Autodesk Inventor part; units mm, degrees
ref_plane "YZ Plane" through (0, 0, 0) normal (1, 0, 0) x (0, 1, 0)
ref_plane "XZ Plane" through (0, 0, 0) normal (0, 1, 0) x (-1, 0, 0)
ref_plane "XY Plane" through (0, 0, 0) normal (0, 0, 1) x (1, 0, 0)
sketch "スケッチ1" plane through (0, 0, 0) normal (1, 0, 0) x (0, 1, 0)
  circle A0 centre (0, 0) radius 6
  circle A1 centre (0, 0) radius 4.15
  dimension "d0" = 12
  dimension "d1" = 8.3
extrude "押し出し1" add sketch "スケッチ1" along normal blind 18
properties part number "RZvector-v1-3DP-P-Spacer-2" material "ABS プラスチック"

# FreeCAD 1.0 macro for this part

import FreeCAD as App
import Part
import Sketcher

doc = App.newDocument("Part")
body = doc.addObject("PartDesign::Body", "Body")

sketch1 = doc.addObject("Sketcher::SketchObject", "Sketch")
body.addObject(sketch1)
sketch1.AttachmentSupport = (doc.YZ_Plane, [""])
sketch1.MapMode = "FlatFace"
sketch1.addGeometry(Part.Circle(App.Vector(0, 0, 0), App.Vector(0, 0, 1), 6), False)
sketch1.addGeometry(Part.Circle(App.Vector(0, 0, 0), App.Vector(0, 0, 1), 4.15), False)
sketch1.addConstraint(Sketcher.Constraint("Coincident", 0, 3, -1, 1))
sketch1.addConstraint(Sketcher.Constraint("Coincident", 1, 3, -1, 1))
sketch1.addConstraint(Sketcher.Constraint("Diameter", 0, 12.0))
sketch1.addConstraint(Sketcher.Constraint("Diameter", 1, 8.3))
pad1 = doc.addObject("PartDesign::Pad", "Pad")
body.addObject(pad1)
pad1.Profile = sketch1
pad1.Length = 18

doc.recompute()
